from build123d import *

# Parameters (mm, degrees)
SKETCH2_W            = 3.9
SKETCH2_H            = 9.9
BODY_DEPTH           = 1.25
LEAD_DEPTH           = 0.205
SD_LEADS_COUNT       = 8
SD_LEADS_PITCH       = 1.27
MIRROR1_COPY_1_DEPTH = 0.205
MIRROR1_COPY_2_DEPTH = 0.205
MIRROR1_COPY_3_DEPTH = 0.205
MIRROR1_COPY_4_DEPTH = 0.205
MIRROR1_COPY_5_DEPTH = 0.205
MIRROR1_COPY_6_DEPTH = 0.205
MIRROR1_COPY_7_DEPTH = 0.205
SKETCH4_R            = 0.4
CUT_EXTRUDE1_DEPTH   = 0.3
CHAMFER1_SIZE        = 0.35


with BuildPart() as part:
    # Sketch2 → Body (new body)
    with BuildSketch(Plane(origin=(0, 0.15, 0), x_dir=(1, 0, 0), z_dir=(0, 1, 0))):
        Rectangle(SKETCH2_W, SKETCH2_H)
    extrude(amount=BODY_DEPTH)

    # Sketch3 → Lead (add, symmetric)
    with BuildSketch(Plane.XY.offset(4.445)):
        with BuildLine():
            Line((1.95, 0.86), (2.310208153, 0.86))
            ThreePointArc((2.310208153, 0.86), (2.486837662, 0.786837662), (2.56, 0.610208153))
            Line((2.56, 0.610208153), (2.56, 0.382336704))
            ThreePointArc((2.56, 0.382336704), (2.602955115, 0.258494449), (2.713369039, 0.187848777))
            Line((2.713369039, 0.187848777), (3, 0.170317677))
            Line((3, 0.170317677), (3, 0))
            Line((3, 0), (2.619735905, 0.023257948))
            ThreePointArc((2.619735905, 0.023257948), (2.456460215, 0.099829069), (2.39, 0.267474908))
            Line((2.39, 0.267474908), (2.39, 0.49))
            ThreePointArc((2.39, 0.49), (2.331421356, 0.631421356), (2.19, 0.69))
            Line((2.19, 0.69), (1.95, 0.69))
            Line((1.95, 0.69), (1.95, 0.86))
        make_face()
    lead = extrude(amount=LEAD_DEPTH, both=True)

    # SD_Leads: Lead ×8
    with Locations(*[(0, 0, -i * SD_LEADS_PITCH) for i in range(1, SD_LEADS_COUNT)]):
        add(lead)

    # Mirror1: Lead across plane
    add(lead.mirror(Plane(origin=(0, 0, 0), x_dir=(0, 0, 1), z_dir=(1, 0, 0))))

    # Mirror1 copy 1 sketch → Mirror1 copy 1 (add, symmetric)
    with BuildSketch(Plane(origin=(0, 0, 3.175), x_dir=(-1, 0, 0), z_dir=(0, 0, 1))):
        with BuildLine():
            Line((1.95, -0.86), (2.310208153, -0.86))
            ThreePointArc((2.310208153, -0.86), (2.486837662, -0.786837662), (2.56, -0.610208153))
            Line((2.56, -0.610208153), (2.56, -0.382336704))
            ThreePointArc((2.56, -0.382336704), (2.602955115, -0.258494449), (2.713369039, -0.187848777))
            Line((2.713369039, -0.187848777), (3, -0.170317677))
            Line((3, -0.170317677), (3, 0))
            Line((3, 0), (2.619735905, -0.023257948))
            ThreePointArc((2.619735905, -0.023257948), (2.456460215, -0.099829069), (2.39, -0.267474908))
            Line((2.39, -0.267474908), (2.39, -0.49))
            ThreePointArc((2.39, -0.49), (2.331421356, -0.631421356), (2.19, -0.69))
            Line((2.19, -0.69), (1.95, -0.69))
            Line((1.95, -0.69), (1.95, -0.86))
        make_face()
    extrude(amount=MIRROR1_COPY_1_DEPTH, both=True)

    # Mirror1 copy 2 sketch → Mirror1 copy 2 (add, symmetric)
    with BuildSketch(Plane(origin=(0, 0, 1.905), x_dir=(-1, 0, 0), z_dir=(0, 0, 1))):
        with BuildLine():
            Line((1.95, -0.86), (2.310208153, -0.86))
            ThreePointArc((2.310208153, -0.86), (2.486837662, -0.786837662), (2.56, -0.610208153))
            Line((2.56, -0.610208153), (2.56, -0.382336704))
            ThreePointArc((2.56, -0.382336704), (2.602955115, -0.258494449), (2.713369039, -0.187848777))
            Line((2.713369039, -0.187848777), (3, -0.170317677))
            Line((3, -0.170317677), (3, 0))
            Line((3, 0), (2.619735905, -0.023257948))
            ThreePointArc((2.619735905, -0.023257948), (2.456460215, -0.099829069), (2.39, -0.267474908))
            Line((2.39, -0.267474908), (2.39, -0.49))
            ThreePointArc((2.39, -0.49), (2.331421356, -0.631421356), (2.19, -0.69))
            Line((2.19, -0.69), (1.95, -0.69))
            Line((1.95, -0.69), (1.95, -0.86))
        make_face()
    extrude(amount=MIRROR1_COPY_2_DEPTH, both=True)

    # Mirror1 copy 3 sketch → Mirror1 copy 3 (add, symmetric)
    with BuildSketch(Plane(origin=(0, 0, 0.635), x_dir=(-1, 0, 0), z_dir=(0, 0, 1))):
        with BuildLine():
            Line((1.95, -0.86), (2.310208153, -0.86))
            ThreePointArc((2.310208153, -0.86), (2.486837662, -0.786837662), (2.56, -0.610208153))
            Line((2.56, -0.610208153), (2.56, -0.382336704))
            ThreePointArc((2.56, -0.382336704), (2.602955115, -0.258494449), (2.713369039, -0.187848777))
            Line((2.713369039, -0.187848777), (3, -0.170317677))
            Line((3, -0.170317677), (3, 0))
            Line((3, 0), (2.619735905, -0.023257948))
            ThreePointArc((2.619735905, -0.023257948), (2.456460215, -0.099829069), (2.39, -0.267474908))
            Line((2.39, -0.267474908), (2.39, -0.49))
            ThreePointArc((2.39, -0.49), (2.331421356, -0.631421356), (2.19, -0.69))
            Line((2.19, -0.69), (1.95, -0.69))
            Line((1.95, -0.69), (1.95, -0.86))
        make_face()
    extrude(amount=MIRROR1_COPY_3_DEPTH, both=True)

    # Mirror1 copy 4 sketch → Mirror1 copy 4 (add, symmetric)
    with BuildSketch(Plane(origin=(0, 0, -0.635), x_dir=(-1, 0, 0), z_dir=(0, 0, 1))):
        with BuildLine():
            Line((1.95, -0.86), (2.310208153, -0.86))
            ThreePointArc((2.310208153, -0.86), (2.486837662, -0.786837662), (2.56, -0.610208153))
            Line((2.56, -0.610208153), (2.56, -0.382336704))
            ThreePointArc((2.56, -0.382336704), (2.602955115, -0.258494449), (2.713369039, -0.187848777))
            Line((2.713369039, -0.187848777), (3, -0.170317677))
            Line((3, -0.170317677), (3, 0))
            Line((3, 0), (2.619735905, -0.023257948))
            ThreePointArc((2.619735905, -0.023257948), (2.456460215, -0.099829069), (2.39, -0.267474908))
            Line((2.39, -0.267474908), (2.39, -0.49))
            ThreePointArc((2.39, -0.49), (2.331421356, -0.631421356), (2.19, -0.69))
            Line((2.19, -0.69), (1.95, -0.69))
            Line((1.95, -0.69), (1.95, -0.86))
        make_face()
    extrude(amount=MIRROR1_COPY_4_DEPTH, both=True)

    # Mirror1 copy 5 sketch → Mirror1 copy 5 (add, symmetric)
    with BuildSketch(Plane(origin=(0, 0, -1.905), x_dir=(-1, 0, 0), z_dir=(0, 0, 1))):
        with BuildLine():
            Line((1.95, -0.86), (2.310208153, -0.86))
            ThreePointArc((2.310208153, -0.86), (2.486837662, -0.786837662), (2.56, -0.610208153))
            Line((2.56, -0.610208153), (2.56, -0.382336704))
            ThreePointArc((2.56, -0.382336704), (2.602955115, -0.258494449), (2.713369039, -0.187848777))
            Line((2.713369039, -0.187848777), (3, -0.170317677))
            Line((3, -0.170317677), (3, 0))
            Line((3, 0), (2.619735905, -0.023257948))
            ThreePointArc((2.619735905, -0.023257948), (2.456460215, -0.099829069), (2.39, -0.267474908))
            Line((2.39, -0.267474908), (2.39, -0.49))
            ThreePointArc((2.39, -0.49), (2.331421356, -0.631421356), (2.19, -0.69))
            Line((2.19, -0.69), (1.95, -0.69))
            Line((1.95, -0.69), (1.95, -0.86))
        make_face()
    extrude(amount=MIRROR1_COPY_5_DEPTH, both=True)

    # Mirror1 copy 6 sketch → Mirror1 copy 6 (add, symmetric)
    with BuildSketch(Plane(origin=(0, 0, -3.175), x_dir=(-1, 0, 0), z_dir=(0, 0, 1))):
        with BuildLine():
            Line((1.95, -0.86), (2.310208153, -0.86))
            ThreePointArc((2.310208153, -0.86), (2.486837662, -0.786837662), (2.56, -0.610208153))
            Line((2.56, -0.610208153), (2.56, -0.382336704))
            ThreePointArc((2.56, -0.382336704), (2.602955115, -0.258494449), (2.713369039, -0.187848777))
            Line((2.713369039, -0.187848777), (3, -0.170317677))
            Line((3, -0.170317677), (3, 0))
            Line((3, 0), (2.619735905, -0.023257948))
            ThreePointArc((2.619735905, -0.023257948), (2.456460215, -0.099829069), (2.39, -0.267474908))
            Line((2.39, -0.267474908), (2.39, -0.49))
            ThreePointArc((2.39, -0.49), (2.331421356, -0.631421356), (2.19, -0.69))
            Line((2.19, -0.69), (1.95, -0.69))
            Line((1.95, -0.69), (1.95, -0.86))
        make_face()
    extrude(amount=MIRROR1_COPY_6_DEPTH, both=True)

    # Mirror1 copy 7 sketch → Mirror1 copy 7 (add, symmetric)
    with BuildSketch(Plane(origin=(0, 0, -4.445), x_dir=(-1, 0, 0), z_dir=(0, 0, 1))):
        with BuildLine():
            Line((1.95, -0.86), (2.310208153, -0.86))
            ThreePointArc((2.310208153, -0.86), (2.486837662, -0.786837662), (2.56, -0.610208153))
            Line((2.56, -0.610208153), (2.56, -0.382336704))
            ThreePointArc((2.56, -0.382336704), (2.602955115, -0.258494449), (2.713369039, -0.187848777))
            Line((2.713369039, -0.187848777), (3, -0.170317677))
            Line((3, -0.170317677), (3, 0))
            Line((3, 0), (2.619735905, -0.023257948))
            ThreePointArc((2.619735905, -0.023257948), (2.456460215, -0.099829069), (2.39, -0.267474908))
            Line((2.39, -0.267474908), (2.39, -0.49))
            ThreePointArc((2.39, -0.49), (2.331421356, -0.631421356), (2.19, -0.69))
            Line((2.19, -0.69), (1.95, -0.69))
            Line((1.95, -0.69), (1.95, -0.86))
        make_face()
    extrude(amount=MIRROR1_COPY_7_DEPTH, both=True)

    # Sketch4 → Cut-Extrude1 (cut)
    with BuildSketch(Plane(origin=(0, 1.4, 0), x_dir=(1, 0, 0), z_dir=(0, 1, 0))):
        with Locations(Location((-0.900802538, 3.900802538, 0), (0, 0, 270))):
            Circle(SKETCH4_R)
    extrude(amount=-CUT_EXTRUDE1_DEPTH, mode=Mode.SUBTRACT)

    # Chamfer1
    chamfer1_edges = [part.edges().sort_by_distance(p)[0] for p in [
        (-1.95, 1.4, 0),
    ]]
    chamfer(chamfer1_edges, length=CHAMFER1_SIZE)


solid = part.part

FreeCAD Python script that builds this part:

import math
import FreeCAD as App
import Part
import Sketcher

V = App.Vector
Q = App.Units.Quantity


def edges_at(feature, points):
    """Names of the edges that pass closest to the given points."""
    edges = feature.Shape.Edges
    near = lambda p: min(range(len(edges)), key=lambda i: edges[i].distToShape(Part.Vertex(*p))[0])
    return sorted({f"Edge{near(p) + 1}" for p in points})


def add_polygon(sketch, points):
    """Adds a closed chain of lines whose ends are joined by coincident constraints."""
    first, n = sketch.GeometryCount, len(points)
    for a, b in zip(points, points[1:] + points[:1]):
        sketch.addGeometry(Part.LineSegment(App.Vector(*a, 0), App.Vector(*b, 0)), False)
    for i in range(n):
        sketch.addConstraint(Sketcher.Constraint("Coincident", first + i, 2, first + (i + 1) % n, 1))

doc = App.newDocument("Part")
body = doc.addObject("PartDesign::Body", "Body")

# Sketch on XZ plane
sketch1 = body.newObject("Sketcher::SketchObject", "Sketch")
sketch1.AttachmentSupport = (doc.getObject("XZ_Plane"), [""])
sketch1.MapMode = "FlatFace"
sketch1.AttachmentOffset = App.Placement(V(0, 0, -0.15), App.Rotation())
add_polygon(sketch1, [(-1.9, -5), (-1.9, 5), (1.9, 5), (1.9, -5)])  # lines 0-3
sketch1.addConstraint(Sketcher.Constraint("Vertical", 0))
sketch1.addConstraint(Sketcher.Constraint("Horizontal", 1))
sketch1.addConstraint(Sketcher.Constraint("Vertical", 2))
sketch1.addConstraint(Sketcher.Constraint("Horizontal", 3))
sketch1.addConstraint(Sketcher.Constraint("Symmetric", 0, 2, 2, 2, -1, 1))
sketch1.addConstraint(Sketcher.Constraint("DistanceX", 1, 1, 1, 2, 3.9))
sketch1.addConstraint(Sketcher.Constraint("DistanceY", 0, 1, 0, 2, 9.9))
pad1 = body.newObject("PartDesign::Pad", "Pad")
pad1.Profile = sketch1
pad1.Length = 1.25
pad1.Reversed = True

# Sketch on XY plane
sketch2 = body.newObject("Sketcher::SketchObject", "Sketch001")
sketch2.AttachmentSupport = (doc.getObject("XY_Plane"), [""])
sketch2.MapMode = "FlatFace"
sketch2.AttachmentOffset = App.Placement(V(0, 0, 4.445), App.Rotation())
sketch2.addGeometry(Part.LineSegment(V(2.31, 0.86, 0), V(1.95, 0.86, 0)), False)
sketch2.addGeometry(Part.LineSegment(V(1.95, 0.86, 0), V(1.95, 0.69, 0)), False)
sketch2.addGeometry(Part.LineSegment(V(1.95, 0.69, 0), V(2.19, 0.69, 0)), False)
sketch2.addGeometry(Part.ArcOfCircle(Part.Circle(V(2.19, 0.49, 0), V(0, 0, 1), 0.2), math.radians(0), math.radians(90)), False)
sketch2.addGeometry(Part.LineSegment(V(2.39, 0.49, 0), V(2.39, 0.27, 0)), False)
sketch2.addGeometry(Part.ArcOfCircle(Part.Circle(V(2.63, 0.27, 0), V(0, 0, 1), 0.24), math.radians(-180), math.radians(-94)), False)
sketch2.addGeometry(Part.LineSegment(V(2.62, 0.02, 0), V(3, 0, 0)), False)
sketch2.addGeometry(Part.LineSegment(V(3, 0, 0), V(3, 0.17, 0)), False)
sketch2.addGeometry(Part.LineSegment(V(3, 0.17, 0), V(2.71, 0.19, 0)), False)
sketch2.addGeometry(Part.ArcOfCircle(Part.Circle(V(2.76, 0.38, 0), V(0, 0, 1), 0.2), math.radians(180), math.radians(257)), False)
sketch2.addGeometry(Part.LineSegment(V(2.56, 0.38, 0), V(2.56, 0.61, 0)), False)
sketch2.addGeometry(Part.ArcOfCircle(Part.Circle(V(2.31, 0.61, 0), V(0, 0, 1), 0.25), math.radians(0), math.radians(90)), False)
sketch2.addConstraint(Sketcher.Constraint("Coincident", 0, 2, 1, 1))
sketch2.addConstraint(Sketcher.Constraint("Coincident", 1, 2, 2, 1))
sketch2.addConstraint(Sketcher.Constraint("Tangent", 2, 2, 3, 2))
sketch2.addConstraint(Sketcher.Constraint("Tangent", 3, 1, 4, 1))
sketch2.addConstraint(Sketcher.Constraint("Tangent", 4, 2, 5, 1))
sketch2.addConstraint(Sketcher.Constraint("Coincident", 5, 2, 6, 1))
sketch2.addConstraint(Sketcher.Constraint("Coincident", 6, 2, 7, 1))
sketch2.addConstraint(Sketcher.Constraint("Coincident", 7, 2, 8, 1))
sketch2.addConstraint(Sketcher.Constraint("Coincident", 8, 2, 9, 2))
sketch2.addConstraint(Sketcher.Constraint("Tangent", 9, 1, 10, 1))
sketch2.addConstraint(Sketcher.Constraint("Tangent", 10, 2, 11, 1))
sketch2.addConstraint(Sketcher.Constraint("Tangent", 11, 2, 0, 1))
sketch2.addConstraint(Sketcher.Constraint("Horizontal", 0))
sketch2.addConstraint(Sketcher.Constraint("Vertical", 1))
sketch2.addConstraint(Sketcher.Constraint("Horizontal", 2))
sketch2.addConstraint(Sketcher.Constraint("Vertical", 4))
sketch2.addConstraint(Sketcher.Constraint("Vertical", 7))
sketch2.addConstraint(Sketcher.Constraint("Vertical", 10))
sketch2.addConstraint(Sketcher.Constraint("Equal", 3, 9))
sketch2.addConstraint(Sketcher.Constraint("PointOnObject", 6, 2, -1))
sketch2.addConstraint(Sketcher.Constraint("Parallel", 6, 8))
sketch2.addConstraint(Sketcher.Constraint("Radius", 3, 0.2))
sketch2.addConstraint(Sketcher.Constraint("DistanceX", -1, 1, 6, 2, 3.0))
sketch2.addConstraint(Sketcher.Constraint("Angle", 6, Q("-3.5 deg")))
sketch2.addConstraint(Sketcher.Constraint("DistanceX", 2, 1, 2, 2, 0.24))
sketch2.addConstraint(Sketcher.Constraint("DistanceY", 1, 2, 1, 1, 0.17))
sketch2.addConstraint(Sketcher.Constraint("DistanceX", -1, 1, 3, 3, 2.19))
sketch2.addConstraint(Sketcher.Constraint("DistanceY", -1, 1, 3, 3, 0.49))
sketch2.addConstraint(Sketcher.Constraint("DistanceX", -1, 1, 9, 3, 2.76))
sketch2.addConstraint(Sketcher.Constraint("Radius", 11, 0.249792))
sketch2.addConstraint(Sketcher.Constraint("Radius", 5, 0.244673))
sketch2.addConstraint(Sketcher.Constraint("DistanceY", 10, 1, 10, 2, 0.227871))
sketch2.addConstraint(Sketcher.Constraint("DistanceY", 7, 1, 7, 2, 0.170318))
sketch2.addConstraint(Sketcher.Constraint("DistanceY", 5, 2, 9, 3, 0.359079))
pad2 = body.newObject("PartDesign::Pad", "Pad001")
pad2.Profile = sketch2
pad2.Length = 0.41
pad2.Midplane = True
doc.recompute()

linearpattern = body.newObject("PartDesign::LinearPattern", "LinearPattern")
linearpattern.Originals = [pad2]
linearpattern.Direction = (doc.getObject("Z_Axis"), [""])
linearpattern.Mode = "offset"
linearpattern.Offset = 1.27
linearpattern.Occurrences = 8
linearpattern.Reversed = True
body.Tip = linearpattern
doc.recompute()

mirrored = body.newObject("PartDesign::Mirrored", "Mirrored")
mirrored.Originals = [pad2]
mirrored.MirrorPlane = (doc.getObject("YZ_Plane"), [""])
body.Tip = mirrored

# Sketch on XY plane
sketch3 = body.newObject("Sketcher::SketchObject", "Sketch002")
sketch3.AttachmentSupport = (doc.getObject("XY_Plane"), [""])
sketch3.MapMode = "FlatFace"
sketch3.AttachmentOffset = App.Placement(V(0, 0, 3.175), App.Rotation())
sketch3.addGeometry(Part.LineSegment(V(-1.95, 0.86, 0), V(-2.31, 0.86, 0)), False)
sketch3.addGeometry(Part.ArcOfCircle(Part.Circle(V(-2.31, 0.61, 0), V(0, 0, 1), 0.25), math.radians(90), math.radians(180)), False)
sketch3.addGeometry(Part.LineSegment(V(-2.56, 0.61, 0), V(-2.56, 0.38, 0)), False)
sketch3.addGeometry(Part.ArcOfCircle(Part.Circle(V(-2.76, 0.38, 0), V(0, 0, 1), 0.2), math.radians(-77), math.radians(0)), False)
sketch3.addGeometry(Part.LineSegment(V(-2.71, 0.19, 0), V(-3, 0.17, 0)), False)
sketch3.addGeometry(Part.LineSegment(V(-3, 0.17, 0), V(-3, 0, 0)), False)
sketch3.addGeometry(Part.LineSegment(V(-3, 0, 0), V(-2.62, 0.02, 0)), False)
sketch3.addGeometry(Part.ArcOfCircle(Part.Circle(V(-2.63, 0.27, 0), V(0, 0, 1), 0.24), math.radians(-86), math.radians(0)), False)
sketch3.addGeometry(Part.LineSegment(V(-2.39, 0.27, 0), V(-2.39, 0.49, 0)), False)
sketch3.addGeometry(Part.ArcOfCircle(Part.Circle(V(-2.19, 0.49, 0), V(0, 0, 1), 0.2), math.radians(90), math.radians(180)), False)
sketch3.addGeometry(Part.LineSegment(V(-2.19, 0.69, 0), V(-1.95, 0.69, 0)), False)
sketch3.addGeometry(Part.LineSegment(V(-1.95, 0.69, 0), V(-1.95, 0.86, 0)), False)
sketch3.addConstraint(Sketcher.Constraint("Tangent", 0, 2, 1, 1))
sketch3.addConstraint(Sketcher.Constraint("Tangent", 1, 2, 2, 1))
sketch3.addConstraint(Sketcher.Constraint("Tangent", 2, 2, 3, 2))
sketch3.addConstraint(Sketcher.Constraint("Coincident", 3, 1, 4, 1))
sketch3.addConstraint(Sketcher.Constraint("Coincident", 4, 2, 5, 1))
sketch3.addConstraint(Sketcher.Constraint("Coincident", 5, 2, 6, 1))
sketch3.addConstraint(Sketcher.Constraint("Coincident", 6, 2, 7, 1))
sketch3.addConstraint(Sketcher.Constraint("Tangent", 7, 2, 8, 1))
sketch3.addConstraint(Sketcher.Constraint("Tangent", 8, 2, 9, 2))
sketch3.addConstraint(Sketcher.Constraint("Tangent", 9, 1, 10, 1))
sketch3.addConstraint(Sketcher.Constraint("Coincident", 10, 2, 11, 1))
sketch3.addConstraint(Sketcher.Constraint("Coincident", 11, 2, 0, 1))
sketch3.addConstraint(Sketcher.Constraint("Horizontal", 0))
sketch3.addConstraint(Sketcher.Constraint("Vertical", 2))
sketch3.addConstraint(Sketcher.Constraint("Vertical", 5))
sketch3.addConstraint(Sketcher.Constraint("Vertical", 8))
sketch3.addConstraint(Sketcher.Constraint("Horizontal", 10))
sketch3.addConstraint(Sketcher.Constraint("Vertical", 11))
sketch3.addConstraint(Sketcher.Constraint("Equal", 3, 9))
sketch3.addConstraint(Sketcher.Constraint("PointOnObject", 5, 2, -1))
sketch3.addConstraint(Sketcher.Constraint("Parallel", 4, 6))
sketch3.addConstraint(Sketcher.Constraint("Radius", 3, 0.2))
sketch3.addConstraint(Sketcher.Constraint("DistanceX", 4, 2, -1, 1, 3.0))
sketch3.addConstraint(Sketcher.Constraint("Angle", 4, Q("-176.5 deg")))
sketch3.addConstraint(Sketcher.Constraint("DistanceX", 10, 1, 10, 2, 0.24))
sketch3.addConstraint(Sketcher.Constraint("DistanceY", 11, 1, 11, 2, 0.17))
sketch3.addConstraint(Sketcher.Constraint("DistanceX", 3, 3, -1, 1, 2.76))
sketch3.addConstraint(Sketcher.Constraint("DistanceX", 9, 3, -1, 1, 2.19))
sketch3.addConstraint(Sketcher.Constraint("DistanceY", -1, 1, 9, 3, 0.49))
sketch3.addConstraint(Sketcher.Constraint("Radius", 1, 0.249792))
sketch3.addConstraint(Sketcher.Constraint("Radius", 7, 0.244673))
sketch3.addConstraint(Sketcher.Constraint("DistanceY", 2, 2, 2, 1, 0.227871))
sketch3.addConstraint(Sketcher.Constraint("DistanceY", 5, 2, 5, 1, 0.170318))
sketch3.addConstraint(Sketcher.Constraint("DistanceY", 6, 2, 3, 1, 0.164591))
pad3 = body.newObject("PartDesign::Pad", "Pad002")
pad3.Profile = sketch3
pad3.Length = 0.41
pad3.Midplane = True

# Sketch on XY plane
sketch4 = body.newObject("Sketcher::SketchObject", "Sketch003")
sketch4.AttachmentSupport = (doc.getObject("XY_Plane"), [""])
sketch4.MapMode = "FlatFace"
sketch4.AttachmentOffset = App.Placement(V(0, 0, 1.905), App.Rotation())
sketch4.addGeometry(Part.LineSegment(V(-1.95, 0.86, 0), V(-2.31, 0.86, 0)), False)
sketch4.addGeometry(Part.ArcOfCircle(Part.Circle(V(-2.31, 0.61, 0), V(0, 0, 1), 0.25), math.radians(90), math.radians(180)), False)
sketch4.addGeometry(Part.LineSegment(V(-2.56, 0.61, 0), V(-2.56, 0.38, 0)), False)
sketch4.addGeometry(Part.ArcOfCircle(Part.Circle(V(-2.76, 0.38, 0), V(0, 0, 1), 0.2), math.radians(-77), math.radians(0)), False)
sketch4.addGeometry(Part.LineSegment(V(-2.71, 0.19, 0), V(-3, 0.17, 0)), False)
sketch4.addGeometry(Part.LineSegment(V(-3, 0.17, 0), V(-3, 0, 0)), False)
sketch4.addGeometry(Part.LineSegment(V(-3, 0, 0), V(-2.62, 0.02, 0)), False)
sketch4.addGeometry(Part.ArcOfCircle(Part.Circle(V(-2.63, 0.27, 0), V(0, 0, 1), 0.24), math.radians(-86), math.radians(0)), False)
sketch4.addGeometry(Part.LineSegment(V(-2.39, 0.27, 0), V(-2.39, 0.49, 0)), False)
sketch4.addGeometry(Part.ArcOfCircle(Part.Circle(V(-2.19, 0.49, 0), V(0, 0, 1), 0.2), math.radians(90), math.radians(180)), False)
sketch4.addGeometry(Part.LineSegment(V(-2.19, 0.69, 0), V(-1.95, 0.69, 0)), False)
sketch4.addGeometry(Part.LineSegment(V(-1.95, 0.69, 0), V(-1.95, 0.86, 0)), False)
sketch4.addConstraint(Sketcher.Constraint("Tangent", 0, 2, 1, 1))
sketch4.addConstraint(Sketcher.Constraint("Tangent", 1, 2, 2, 1))
sketch4.addConstraint(Sketcher.Constraint("Tangent", 2, 2, 3, 2))
sketch4.addConstraint(Sketcher.Constraint("Coincident", 3, 1, 4, 1))
sketch4.addConstraint(Sketcher.Constraint("Coincident", 4, 2, 5, 1))
sketch4.addConstraint(Sketcher.Constraint("Coincident", 5, 2, 6, 1))
sketch4.addConstraint(Sketcher.Constraint("Coincident", 6, 2, 7, 1))
sketch4.addConstraint(Sketcher.Constraint("Tangent", 7, 2, 8, 1))
sketch4.addConstraint(Sketcher.Constraint("Tangent", 8, 2, 9, 2))
sketch4.addConstraint(Sketcher.Constraint("Tangent", 9, 1, 10, 1))
sketch4.addConstraint(Sketcher.Constraint("Coincident", 10, 2, 11, 1))
sketch4.addConstraint(Sketcher.Constraint("Coincident", 11, 2, 0, 1))
sketch4.addConstraint(Sketcher.Constraint("Horizontal", 0))
sketch4.addConstraint(Sketcher.Constraint("Vertical", 2))
sketch4.addConstraint(Sketcher.Constraint("Vertical", 5))
sketch4.addConstraint(Sketcher.Constraint("Vertical", 8))
sketch4.addConstraint(Sketcher.Constraint("Horizontal", 10))
sketch4.addConstraint(Sketcher.Constraint("Vertical", 11))
sketch4.addConstraint(Sketcher.Constraint("Equal", 3, 9))
sketch4.addConstraint(Sketcher.Constraint("PointOnObject", 5, 2, -1))
sketch4.addConstraint(Sketcher.Constraint("Parallel", 4, 6))
sketch4.addConstraint(Sketcher.Constraint("Radius", 3, 0.2))
sketch4.addConstraint(Sketcher.Constraint("DistanceX", 4, 2, -1, 1, 3.0))
sketch4.addConstraint(Sketcher.Constraint("Angle", 4, Q("-176.5 deg")))
sketch4.addConstraint(Sketcher.Constraint("DistanceX", 10, 1, 10, 2, 0.24))
sketch4.addConstraint(Sketcher.Constraint("DistanceY", 11, 1, 11, 2, 0.17))
sketch4.addConstraint(Sketcher.Constraint("DistanceX", 3, 3, -1, 1, 2.76))
sketch4.addConstraint(Sketcher.Constraint("DistanceX", 9, 3, -1, 1, 2.19))
sketch4.addConstraint(Sketcher.Constraint("DistanceY", -1, 1, 9, 3, 0.49))
sketch4.addConstraint(Sketcher.Constraint("Radius", 1, 0.249792))
sketch4.addConstraint(Sketcher.Constraint("Radius", 7, 0.244673))
sketch4.addConstraint(Sketcher.Constraint("DistanceY", 2, 2, 2, 1, 0.227871))
sketch4.addConstraint(Sketcher.Constraint("DistanceY", 5, 2, 5, 1, 0.170318))
sketch4.addConstraint(Sketcher.Constraint("DistanceY", 6, 2, 3, 1, 0.164591))
pad4 = body.newObject("PartDesign::Pad", "Pad003")
pad4.Profile = sketch4
pad4.Length = 0.41
pad4.Midplane = True

# Sketch on XY plane
sketch5 = body.newObject("Sketcher::SketchObject", "Sketch004")
sketch5.AttachmentSupport = (doc.getObject("XY_Plane"), [""])
sketch5.MapMode = "FlatFace"
sketch5.AttachmentOffset = App.Placement(V(0, 0, 0.635), App.Rotation())
sketch5.addGeometry(Part.LineSegment(V(-1.95, 0.86, 0), V(-2.31, 0.86, 0)), False)
sketch5.addGeometry(Part.ArcOfCircle(Part.Circle(V(-2.31, 0.61, 0), V(0, 0, 1), 0.25), math.radians(90), math.radians(180)), False)
sketch5.addGeometry(Part.LineSegment(V(-2.56, 0.61, 0), V(-2.56, 0.38, 0)), False)
sketch5.addGeometry(Part.ArcOfCircle(Part.Circle(V(-2.76, 0.38, 0), V(0, 0, 1), 0.2), math.radians(-77), math.radians(0)), False)
sketch5.addGeometry(Part.LineSegment(V(-2.71, 0.19, 0), V(-3, 0.17, 0)), False)
sketch5.addGeometry(Part.LineSegment(V(-3, 0.17, 0), V(-3, 0, 0)), False)
sketch5.addGeometry(Part.LineSegment(V(-3, 0, 0), V(-2.62, 0.02, 0)), False)
sketch5.addGeometry(Part.ArcOfCircle(Part.Circle(V(-2.63, 0.27, 0), V(0, 0, 1), 0.24), math.radians(-86), math.radians(0)), False)
sketch5.addGeometry(Part.LineSegment(V(-2.39, 0.27, 0), V(-2.39, 0.49, 0)), False)
sketch5.addGeometry(Part.ArcOfCircle(Part.Circle(V(-2.19, 0.49, 0), V(0, 0, 1), 0.2), math.radians(90), math.radians(180)), False)
sketch5.addGeometry(Part.LineSegment(V(-2.19, 0.69, 0), V(-1.95, 0.69, 0)), False)
sketch5.addGeometry(Part.LineSegment(V(-1.95, 0.69, 0), V(-1.95, 0.86, 0)), False)
sketch5.addConstraint(Sketcher.Constraint("Tangent", 0, 2, 1, 1))
sketch5.addConstraint(Sketcher.Constraint("Tangent", 1, 2, 2, 1))
sketch5.addConstraint(Sketcher.Constraint("Tangent", 2, 2, 3, 2))
sketch5.addConstraint(Sketcher.Constraint("Coincident", 3, 1, 4, 1))
sketch5.addConstraint(Sketcher.Constraint("Coincident", 4, 2, 5, 1))
sketch5.addConstraint(Sketcher.Constraint("Coincident", 5, 2, 6, 1))
sketch5.addConstraint(Sketcher.Constraint("Coincident", 6, 2, 7, 1))
sketch5.addConstraint(Sketcher.Constraint("Tangent", 7, 2, 8, 1))
sketch5.addConstraint(Sketcher.Constraint("Tangent", 8, 2, 9, 2))
sketch5.addConstraint(Sketcher.Constraint("Tangent", 9, 1, 10, 1))
sketch5.addConstraint(Sketcher.Constraint("Coincident", 10, 2, 11, 1))
sketch5.addConstraint(Sketcher.Constraint("Coincident", 11, 2, 0, 1))
sketch5.addConstraint(Sketcher.Constraint("Horizontal", 0))
sketch5.addConstraint(Sketcher.Constraint("Vertical", 2))
sketch5.addConstraint(Sketcher.Constraint("Vertical", 5))
sketch5.addConstraint(Sketcher.Constraint("Vertical", 8))
sketch5.addConstraint(Sketcher.Constraint("Horizontal", 10))
sketch5.addConstraint(Sketcher.Constraint("Vertical", 11))
sketch5.addConstraint(Sketcher.Constraint("Equal", 3, 9))
sketch5.addConstraint(Sketcher.Constraint("PointOnObject", 5, 2, -1))
sketch5.addConstraint(Sketcher.Constraint("Parallel", 4, 6))
sketch5.addConstraint(Sketcher.Constraint("Radius", 3, 0.2))
sketch5.addConstraint(Sketcher.Constraint("DistanceX", 4, 2, -1, 1, 3.0))
sketch5.addConstraint(Sketcher.Constraint("Angle", 4, Q("-176.5 deg")))
sketch5.addConstraint(Sketcher.Constraint("DistanceX", 10, 1, 10, 2, 0.24))
sketch5.addConstraint(Sketcher.Constraint("DistanceY", 11, 1, 11, 2, 0.17))
sketch5.addConstraint(Sketcher.Constraint("DistanceX", 3, 3, -1, 1, 2.76))
sketch5.addConstraint(Sketcher.Constraint("DistanceX", 9, 3, -1, 1, 2.19))
sketch5.addConstraint(Sketcher.Constraint("DistanceY", -1, 1, 9, 3, 0.49))
sketch5.addConstraint(Sketcher.Constraint("Radius", 1, 0.249792))
sketch5.addConstraint(Sketcher.Constraint("Radius", 7, 0.244673))
sketch5.addConstraint(Sketcher.Constraint("DistanceY", 2, 2, 2, 1, 0.227871))
sketch5.addConstraint(Sketcher.Constraint("DistanceY", 5, 2, 5, 1, 0.170318))
sketch5.addConstraint(Sketcher.Constraint("DistanceY", 6, 2, 3, 1, 0.164591))
pad5 = body.newObject("PartDesign::Pad", "Pad004")
pad5.Profile = sketch5
pad5.Length = 0.41
pad5.Midplane = True

# Sketch on XY plane
sketch6 = body.newObject("Sketcher::SketchObject", "Sketch005")
sketch6.AttachmentSupport = (doc.getObject("XY_Plane"), [""])
sketch6.MapMode = "FlatFace"
sketch6.AttachmentOffset = App.Placement(V(0, 0, -0.635), App.Rotation())
sketch6.addGeometry(Part.LineSegment(V(-1.95, 0.86, 0), V(-2.31, 0.86, 0)), False)
sketch6.addGeometry(Part.ArcOfCircle(Part.Circle(V(-2.31, 0.61, 0), V(0, 0, 1), 0.25), math.radians(90), math.radians(180)), False)
sketch6.addGeometry(Part.LineSegment(V(-2.56, 0.61, 0), V(-2.56, 0.38, 0)), False)
sketch6.addGeometry(Part.ArcOfCircle(Part.Circle(V(-2.76, 0.38, 0), V(0, 0, 1), 0.2), math.radians(-77), math.radians(0)), False)
sketch6.addGeometry(Part.LineSegment(V(-2.71, 0.19, 0), V(-3, 0.17, 0)), False)
sketch6.addGeometry(Part.LineSegment(V(-3, 0.17, 0), V(-3, 0, 0)), False)
sketch6.addGeometry(Part.LineSegment(V(-3, 0, 0), V(-2.62, 0.02, 0)), False)
sketch6.addGeometry(Part.ArcOfCircle(Part.Circle(V(-2.63, 0.27, 0), V(0, 0, 1), 0.24), math.radians(-86), math.radians(0)), False)
sketch6.addGeometry(Part.LineSegment(V(-2.39, 0.27, 0), V(-2.39, 0.49, 0)), False)
sketch6.addGeometry(Part.ArcOfCircle(Part.Circle(V(-2.19, 0.49, 0), V(0, 0, 1), 0.2), math.radians(90), math.radians(180)), False)
sketch6.addGeometry(Part.LineSegment(V(-2.19, 0.69, 0), V(-1.95, 0.69, 0)), False)
sketch6.addGeometry(Part.LineSegment(V(-1.95, 0.69, 0), V(-1.95, 0.86, 0)), False)
sketch6.addConstraint(Sketcher.Constraint("Tangent", 0, 2, 1, 1))
sketch6.addConstraint(Sketcher.Constraint("Tangent", 1, 2, 2, 1))
sketch6.addConstraint(Sketcher.Constraint("Tangent", 2, 2, 3, 2))
sketch6.addConstraint(Sketcher.Constraint("Coincident", 3, 1, 4, 1))
sketch6.addConstraint(Sketcher.Constraint("Coincident", 4, 2, 5, 1))
sketch6.addConstraint(Sketcher.Constraint("Coincident", 5, 2, 6, 1))
sketch6.addConstraint(Sketcher.Constraint("Coincident", 6, 2, 7, 1))
sketch6.addConstraint(Sketcher.Constraint("Tangent", 7, 2, 8, 1))
sketch6.addConstraint(Sketcher.Constraint("Tangent", 8, 2, 9, 2))
sketch6.addConstraint(Sketcher.Constraint("Tangent", 9, 1, 10, 1))
sketch6.addConstraint(Sketcher.Constraint("Coincident", 10, 2, 11, 1))
sketch6.addConstraint(Sketcher.Constraint("Coincident", 11, 2, 0, 1))
sketch6.addConstraint(Sketcher.Constraint("Horizontal", 0))
sketch6.addConstraint(Sketcher.Constraint("Vertical", 2))
sketch6.addConstraint(Sketcher.Constraint("Vertical", 5))
sketch6.addConstraint(Sketcher.Constraint("Vertical", 8))
sketch6.addConstraint(Sketcher.Constraint("Horizontal", 10))
sketch6.addConstraint(Sketcher.Constraint("Vertical", 11))
sketch6.addConstraint(Sketcher.Constraint("Equal", 3, 9))
sketch6.addConstraint(Sketcher.Constraint("PointOnObject", 5, 2, -1))
sketch6.addConstraint(Sketcher.Constraint("Parallel", 4, 6))
sketch6.addConstraint(Sketcher.Constraint("Radius", 3, 0.2))
sketch6.addConstraint(Sketcher.Constraint("DistanceX", 4, 2, -1, 1, 3.0))
sketch6.addConstraint(Sketcher.Constraint("Angle", 4, Q("-176.5 deg")))
sketch6.addConstraint(Sketcher.Constraint("DistanceX", 10, 1, 10, 2, 0.24))
sketch6.addConstraint(Sketcher.Constraint("DistanceY", 11, 1, 11, 2, 0.17))
sketch6.addConstraint(Sketcher.Constraint("DistanceX", 3, 3, -1, 1, 2.76))
sketch6.addConstraint(Sketcher.Constraint("DistanceX", 9, 3, -1, 1, 2.19))
sketch6.addConstraint(Sketcher.Constraint("DistanceY", -1, 1, 9, 3, 0.49))
sketch6.addConstraint(Sketcher.Constraint("Radius", 1, 0.249792))
sketch6.addConstraint(Sketcher.Constraint("Radius", 7, 0.244673))
sketch6.addConstraint(Sketcher.Constraint("DistanceY", 2, 2, 2, 1, 0.227871))
sketch6.addConstraint(Sketcher.Constraint("DistanceY", 5, 2, 5, 1, 0.170318))
sketch6.addConstraint(Sketcher.Constraint("DistanceY", 6, 2, 3, 1, 0.164591))
pad6 = body.newObject("PartDesign::Pad", "Pad005")
pad6.Profile = sketch6
pad6.Length = 0.41
pad6.Midplane = True

# Sketch on XY plane
sketch7 = body.newObject("Sketcher::SketchObject", "Sketch006")
sketch7.AttachmentSupport = (doc.getObject("XY_Plane"), [""])
sketch7.MapMode = "FlatFace"
sketch7.AttachmentOffset = App.Placement(V(0, 0, -1.905), App.Rotation())
sketch7.addGeometry(Part.LineSegment(V(-1.95, 0.86, 0), V(-2.31, 0.86, 0)), False)
sketch7.addGeometry(Part.ArcOfCircle(Part.Circle(V(-2.31, 0.61, 0), V(0, 0, 1), 0.25), math.radians(90), math.radians(180)), False)
sketch7.addGeometry(Part.LineSegment(V(-2.56, 0.61, 0), V(-2.56, 0.38, 0)), False)
sketch7.addGeometry(Part.ArcOfCircle(Part.Circle(V(-2.76, 0.38, 0), V(0, 0, 1), 0.2), math.radians(-77), math.radians(0)), False)
sketch7.addGeometry(Part.LineSegment(V(-2.71, 0.19, 0), V(-3, 0.17, 0)), False)
sketch7.addGeometry(Part.LineSegment(V(-3, 0.17, 0), V(-3, 0, 0)), False)
sketch7.addGeometry(Part.LineSegment(V(-3, 0, 0), V(-2.62, 0.02, 0)), False)
sketch7.addGeometry(Part.ArcOfCircle(Part.Circle(V(-2.63, 0.27, 0), V(0, 0, 1), 0.24), math.radians(-86), math.radians(0)), False)
sketch7.addGeometry(Part.LineSegment(V(-2.39, 0.27, 0), V(-2.39, 0.49, 0)), False)
sketch7.addGeometry(Part.ArcOfCircle(Part.Circle(V(-2.19, 0.49, 0), V(0, 0, 1), 0.2), math.radians(90), math.radians(180)), False)
sketch7.addGeometry(Part.LineSegment(V(-2.19, 0.69, 0), V(-1.95, 0.69, 0)), False)
sketch7.addGeometry(Part.LineSegment(V(-1.95, 0.69, 0), V(-1.95, 0.86, 0)), False)
sketch7.addConstraint(Sketcher.Constraint("Tangent", 0, 2, 1, 1))
sketch7.addConstraint(Sketcher.Constraint("Tangent", 1, 2, 2, 1))
sketch7.addConstraint(Sketcher.Constraint("Tangent", 2, 2, 3, 2))
sketch7.addConstraint(Sketcher.Constraint("Coincident", 3, 1, 4, 1))
sketch7.addConstraint(Sketcher.Constraint("Coincident", 4, 2, 5, 1))
sketch7.addConstraint(Sketcher.Constraint("Coincident", 5, 2, 6, 1))
sketch7.addConstraint(Sketcher.Constraint("Coincident", 6, 2, 7, 1))
sketch7.addConstraint(Sketcher.Constraint("Tangent", 7, 2, 8, 1))
sketch7.addConstraint(Sketcher.Constraint("Tangent", 8, 2, 9, 2))
sketch7.addConstraint(Sketcher.Constraint("Tangent", 9, 1, 10, 1))
sketch7.addConstraint(Sketcher.Constraint("Coincident", 10, 2, 11, 1))
sketch7.addConstraint(Sketcher.Constraint("Coincident", 11, 2, 0, 1))
sketch7.addConstraint(Sketcher.Constraint("Horizontal", 0))
sketch7.addConstraint(Sketcher.Constraint("Vertical", 2))
sketch7.addConstraint(Sketcher.Constraint("Vertical", 5))
sketch7.addConstraint(Sketcher.Constraint("Vertical", 8))
sketch7.addConstraint(Sketcher.Constraint("Horizontal", 10))
sketch7.addConstraint(Sketcher.Constraint("Vertical", 11))
sketch7.addConstraint(Sketcher.Constraint("Equal", 3, 9))
sketch7.addConstraint(Sketcher.Constraint("PointOnObject", 5, 2, -1))
sketch7.addConstraint(Sketcher.Constraint("Parallel", 4, 6))
sketch7.addConstraint(Sketcher.Constraint("Radius", 3, 0.2))
sketch7.addConstraint(Sketcher.Constraint("DistanceX", 4, 2, -1, 1, 3.0))
sketch7.addConstraint(Sketcher.Constraint("Angle", 4, Q("-176.5 deg")))
sketch7.addConstraint(Sketcher.Constraint("DistanceX", 10, 1, 10, 2, 0.24))
sketch7.addConstraint(Sketcher.Constraint("DistanceY", 11, 1, 11, 2, 0.17))
sketch7.addConstraint(Sketcher.Constraint("DistanceX", 3, 3, -1, 1, 2.76))
sketch7.addConstraint(Sketcher.Constraint("DistanceX", 9, 3, -1, 1, 2.19))
sketch7.addConstraint(Sketcher.Constraint("DistanceY", -1, 1, 9, 3, 0.49))
sketch7.addConstraint(Sketcher.Constraint("Radius", 1, 0.249792))
sketch7.addConstraint(Sketcher.Constraint("Radius", 7, 0.244673))
sketch7.addConstraint(Sketcher.Constraint("DistanceY", 2, 2, 2, 1, 0.227871))
sketch7.addConstraint(Sketcher.Constraint("DistanceY", 5, 2, 5, 1, 0.170318))
sketch7.addConstraint(Sketcher.Constraint("DistanceY", 6, 2, 3, 1, 0.164591))
pad7 = body.newObject("PartDesign::Pad", "Pad006")
pad7.Profile = sketch7
pad7.Length = 0.41
pad7.Midplane = True

# Sketch on XY plane
sketch8 = body.newObject("Sketcher::SketchObject", "Sketch007")
sketch8.AttachmentSupport = (doc.getObject("XY_Plane"), [""])
sketch8.MapMode = "FlatFace"
sketch8.AttachmentOffset = App.Placement(V(0, 0, -3.175), App.Rotation())
sketch8.addGeometry(Part.LineSegment(V(-1.95, 0.86, 0), V(-2.31, 0.86, 0)), False)
sketch8.addGeometry(Part.ArcOfCircle(Part.Circle(V(-2.31, 0.61, 0), V(0, 0, 1), 0.25), math.radians(90), math.radians(180)), False)
sketch8.addGeometry(Part.LineSegment(V(-2.56, 0.61, 0), V(-2.56, 0.38, 0)), False)
sketch8.addGeometry(Part.ArcOfCircle(Part.Circle(V(-2.76, 0.38, 0), V(0, 0, 1), 0.2), math.radians(-77), math.radians(0)), False)
sketch8.addGeometry(Part.LineSegment(V(-2.71, 0.19, 0), V(-3, 0.17, 0)), False)
sketch8.addGeometry(Part.LineSegment(V(-3, 0.17, 0), V(-3, 0, 0)), False)
sketch8.addGeometry(Part.LineSegment(V(-3, 0, 0), V(-2.62, 0.02, 0)), False)
sketch8.addGeometry(Part.ArcOfCircle(Part.Circle(V(-2.63, 0.27, 0), V(0, 0, 1), 0.24), math.radians(-86), math.radians(0)), False)
sketch8.addGeometry(Part.LineSegment(V(-2.39, 0.27, 0), V(-2.39, 0.49, 0)), False)
sketch8.addGeometry(Part.ArcOfCircle(Part.Circle(V(-2.19, 0.49, 0), V(0, 0, 1), 0.2), math.radians(90), math.radians(180)), False)
sketch8.addGeometry(Part.LineSegment(V(-2.19, 0.69, 0), V(-1.95, 0.69, 0)), False)
sketch8.addGeometry(Part.LineSegment(V(-1.95, 0.69, 0), V(-1.95, 0.86, 0)), False)
sketch8.addConstraint(Sketcher.Constraint("Tangent", 0, 2, 1, 1))
sketch8.addConstraint(Sketcher.Constraint("Tangent", 1, 2, 2, 1))
sketch8.addConstraint(Sketcher.Constraint("Tangent", 2, 2, 3, 2))
sketch8.addConstraint(Sketcher.Constraint("Coincident", 3, 1, 4, 1))
sketch8.addConstraint(Sketcher.Constraint("Coincident", 4, 2, 5, 1))
sketch8.addConstraint(Sketcher.Constraint("Coincident", 5, 2, 6, 1))
sketch8.addConstraint(Sketcher.Constraint("Coincident", 6, 2, 7, 1))
sketch8.addConstraint(Sketcher.Constraint("Tangent", 7, 2, 8, 1))
sketch8.addConstraint(Sketcher.Constraint("Tangent", 8, 2, 9, 2))
sketch8.addConstraint(Sketcher.Constraint("Tangent", 9, 1, 10, 1))
sketch8.addConstraint(Sketcher.Constraint("Coincident", 10, 2, 11, 1))
sketch8.addConstraint(Sketcher.Constraint("Coincident", 11, 2, 0, 1))
sketch8.addConstraint(Sketcher.Constraint("Horizontal", 0))
sketch8.addConstraint(Sketcher.Constraint("Vertical", 2))
sketch8.addConstraint(Sketcher.Constraint("Vertical", 5))
sketch8.addConstraint(Sketcher.Constraint("Vertical", 8))
sketch8.addConstraint(Sketcher.Constraint("Horizontal", 10))
sketch8.addConstraint(Sketcher.Constraint("Vertical", 11))
sketch8.addConstraint(Sketcher.Constraint("Equal", 3, 9))
sketch8.addConstraint(Sketcher.Constraint("PointOnObject", 5, 2, -1))
sketch8.addConstraint(Sketcher.Constraint("Parallel", 4, 6))
sketch8.addConstraint(Sketcher.Constraint("Radius", 3, 0.2))
sketch8.addConstraint(Sketcher.Constraint("DistanceX", 4, 2, -1, 1, 3.0))
sketch8.addConstraint(Sketcher.Constraint("Angle", 4, Q("-176.5 deg")))
sketch8.addConstraint(Sketcher.Constraint("DistanceX", 10, 1, 10, 2, 0.24))
sketch8.addConstraint(Sketcher.Constraint("DistanceY", 11, 1, 11, 2, 0.17))
sketch8.addConstraint(Sketcher.Constraint("DistanceX", 3, 3, -1, 1, 2.76))
sketch8.addConstraint(Sketcher.Constraint("DistanceX", 9, 3, -1, 1, 2.19))
sketch8.addConstraint(Sketcher.Constraint("DistanceY", -1, 1, 9, 3, 0.49))
sketch8.addConstraint(Sketcher.Constraint("Radius", 1, 0.249792))
sketch8.addConstraint(Sketcher.Constraint("Radius", 7, 0.244673))
sketch8.addConstraint(Sketcher.Constraint("DistanceY", 2, 2, 2, 1, 0.227871))
sketch8.addConstraint(Sketcher.Constraint("DistanceY", 5, 2, 5, 1, 0.170318))
sketch8.addConstraint(Sketcher.Constraint("DistanceY", 6, 2, 3, 1, 0.164591))
pad8 = body.newObject("PartDesign::Pad", "Pad007")
pad8.Profile = sketch8
pad8.Length = 0.41
pad8.Midplane = True

# Sketch on XY plane
sketch9 = body.newObject("Sketcher::SketchObject", "Sketch008")
sketch9.AttachmentSupport = (doc.getObject("XY_Plane"), [""])
sketch9.MapMode = "FlatFace"
sketch9.AttachmentOffset = App.Placement(V(0, 0, -4.445), App.Rotation())
sketch9.addGeometry(Part.LineSegment(V(-1.95, 0.86, 0), V(-2.31, 0.86, 0)), False)
sketch9.addGeometry(Part.ArcOfCircle(Part.Circle(V(-2.31, 0.61, 0), V(0, 0, 1), 0.25), math.radians(90), math.radians(180)), False)
sketch9.addGeometry(Part.LineSegment(V(-2.56, 0.61, 0), V(-2.56, 0.38, 0)), False)
sketch9.addGeometry(Part.ArcOfCircle(Part.Circle(V(-2.76, 0.38, 0), V(0, 0, 1), 0.2), math.radians(-77), math.radians(0)), False)
sketch9.addGeometry(Part.LineSegment(V(-2.71, 0.19, 0), V(-3, 0.17, 0)), False)
sketch9.addGeometry(Part.LineSegment(V(-3, 0.17, 0), V(-3, 0, 0)), False)
sketch9.addGeometry(Part.LineSegment(V(-3, 0, 0), V(-2.62, 0.02, 0)), False)
sketch9.addGeometry(Part.ArcOfCircle(Part.Circle(V(-2.63, 0.27, 0), V(0, 0, 1), 0.24), math.radians(-86), math.radians(0)), False)
sketch9.addGeometry(Part.LineSegment(V(-2.39, 0.27, 0), V(-2.39, 0.49, 0)), False)
sketch9.addGeometry(Part.ArcOfCircle(Part.Circle(V(-2.19, 0.49, 0), V(0, 0, 1), 0.2), math.radians(90), math.radians(180)), False)
sketch9.addGeometry(Part.LineSegment(V(-2.19, 0.69, 0), V(-1.95, 0.69, 0)), False)
sketch9.addGeometry(Part.LineSegment(V(-1.95, 0.69, 0), V(-1.95, 0.86, 0)), False)
sketch9.addConstraint(Sketcher.Constraint("Tangent", 0, 2, 1, 1))
sketch9.addConstraint(Sketcher.Constraint("Tangent", 1, 2, 2, 1))
sketch9.addConstraint(Sketcher.Constraint("Tangent", 2, 2, 3, 2))
sketch9.addConstraint(Sketcher.Constraint("Coincident", 3, 1, 4, 1))
sketch9.addConstraint(Sketcher.Constraint("Coincident", 4, 2, 5, 1))
sketch9.addConstraint(Sketcher.Constraint("Coincident", 5, 2, 6, 1))
sketch9.addConstraint(Sketcher.Constraint("Coincident", 6, 2, 7, 1))
sketch9.addConstraint(Sketcher.Constraint("Tangent", 7, 2, 8, 1))
sketch9.addConstraint(Sketcher.Constraint("Tangent", 8, 2, 9, 2))
sketch9.addConstraint(Sketcher.Constraint("Tangent", 9, 1, 10, 1))
sketch9.addConstraint(Sketcher.Constraint("Coincident", 10, 2, 11, 1))
sketch9.addConstraint(Sketcher.Constraint("Coincident", 11, 2, 0, 1))
sketch9.addConstraint(Sketcher.Constraint("Horizontal", 0))
sketch9.addConstraint(Sketcher.Constraint("Vertical", 2))
sketch9.addConstraint(Sketcher.Constraint("Vertical", 5))
sketch9.addConstraint(Sketcher.Constraint("Vertical", 8))
sketch9.addConstraint(Sketcher.Constraint("Horizontal", 10))
sketch9.addConstraint(Sketcher.Constraint("Vertical", 11))
sketch9.addConstraint(Sketcher.Constraint("Equal", 3, 9))
sketch9.addConstraint(Sketcher.Constraint("PointOnObject", 5, 2, -1))
sketch9.addConstraint(Sketcher.Constraint("Parallel", 4, 6))
sketch9.addConstraint(Sketcher.Constraint("Radius", 3, 0.2))
sketch9.addConstraint(Sketcher.Constraint("DistanceX", 4, 2, -1, 1, 3.0))
sketch9.addConstraint(Sketcher.Constraint("Angle", 4, Q("-176.5 deg")))
sketch9.addConstraint(Sketcher.Constraint("DistanceX", 10, 1, 10, 2, 0.24))
sketch9.addConstraint(Sketcher.Constraint("DistanceY", 11, 1, 11, 2, 0.17))
sketch9.addConstraint(Sketcher.Constraint("DistanceX", 3, 3, -1, 1, 2.76))
sketch9.addConstraint(Sketcher.Constraint("DistanceX", 9, 3, -1, 1, 2.19))
sketch9.addConstraint(Sketcher.Constraint("DistanceY", -1, 1, 9, 3, 0.49))
sketch9.addConstraint(Sketcher.Constraint("Radius", 1, 0.249792))
sketch9.addConstraint(Sketcher.Constraint("Radius", 7, 0.244673))
sketch9.addConstraint(Sketcher.Constraint("DistanceY", 2, 2, 2, 1, 0.227871))
sketch9.addConstraint(Sketcher.Constraint("DistanceY", 5, 2, 5, 1, 0.170318))
sketch9.addConstraint(Sketcher.Constraint("DistanceY", 6, 2, 3, 1, 0.164591))
pad9 = body.newObject("PartDesign::Pad", "Pad008")
pad9.Profile = sketch9
pad9.Length = 0.41
pad9.Midplane = True

# Sketch on XZ plane
sketch10 = body.newObject("Sketcher::SketchObject", "Sketch009")
sketch10.AttachmentSupport = (doc.getObject("XZ_Plane"), [""])
sketch10.MapMode = "FlatFace"
sketch10.AttachmentOffset = App.Placement(V(0, 0, -1.4), App.Rotation())
sketch10.addGeometry(Part.Circle(V(-0.9, -3.9, 0), V(0, 0, 1), 0.4), False)
sketch10.addConstraint(Sketcher.Constraint("Diameter", 0, 0.8))
sketch10.addConstraint(Sketcher.Constraint("DistanceX", 0, 3, -1, 1, 0.900803))
sketch10.addConstraint(Sketcher.Constraint("DistanceY", 0, 3, -1, 1, 3.900803))
pocket1 = body.newObject("PartDesign::Pocket", "Pocket")
pocket1.Profile = sketch10
pocket1.Length = 0.3
pocket1.Reversed = True
doc.recompute()

chamfer = body.newObject("PartDesign::Chamfer", "Chamfer")
chamfer.Base = (pocket1, edges_at(pocket1, [(-1.95, 1.4, 0)]))
chamfer.Size = 0.35

doc.recompute()
